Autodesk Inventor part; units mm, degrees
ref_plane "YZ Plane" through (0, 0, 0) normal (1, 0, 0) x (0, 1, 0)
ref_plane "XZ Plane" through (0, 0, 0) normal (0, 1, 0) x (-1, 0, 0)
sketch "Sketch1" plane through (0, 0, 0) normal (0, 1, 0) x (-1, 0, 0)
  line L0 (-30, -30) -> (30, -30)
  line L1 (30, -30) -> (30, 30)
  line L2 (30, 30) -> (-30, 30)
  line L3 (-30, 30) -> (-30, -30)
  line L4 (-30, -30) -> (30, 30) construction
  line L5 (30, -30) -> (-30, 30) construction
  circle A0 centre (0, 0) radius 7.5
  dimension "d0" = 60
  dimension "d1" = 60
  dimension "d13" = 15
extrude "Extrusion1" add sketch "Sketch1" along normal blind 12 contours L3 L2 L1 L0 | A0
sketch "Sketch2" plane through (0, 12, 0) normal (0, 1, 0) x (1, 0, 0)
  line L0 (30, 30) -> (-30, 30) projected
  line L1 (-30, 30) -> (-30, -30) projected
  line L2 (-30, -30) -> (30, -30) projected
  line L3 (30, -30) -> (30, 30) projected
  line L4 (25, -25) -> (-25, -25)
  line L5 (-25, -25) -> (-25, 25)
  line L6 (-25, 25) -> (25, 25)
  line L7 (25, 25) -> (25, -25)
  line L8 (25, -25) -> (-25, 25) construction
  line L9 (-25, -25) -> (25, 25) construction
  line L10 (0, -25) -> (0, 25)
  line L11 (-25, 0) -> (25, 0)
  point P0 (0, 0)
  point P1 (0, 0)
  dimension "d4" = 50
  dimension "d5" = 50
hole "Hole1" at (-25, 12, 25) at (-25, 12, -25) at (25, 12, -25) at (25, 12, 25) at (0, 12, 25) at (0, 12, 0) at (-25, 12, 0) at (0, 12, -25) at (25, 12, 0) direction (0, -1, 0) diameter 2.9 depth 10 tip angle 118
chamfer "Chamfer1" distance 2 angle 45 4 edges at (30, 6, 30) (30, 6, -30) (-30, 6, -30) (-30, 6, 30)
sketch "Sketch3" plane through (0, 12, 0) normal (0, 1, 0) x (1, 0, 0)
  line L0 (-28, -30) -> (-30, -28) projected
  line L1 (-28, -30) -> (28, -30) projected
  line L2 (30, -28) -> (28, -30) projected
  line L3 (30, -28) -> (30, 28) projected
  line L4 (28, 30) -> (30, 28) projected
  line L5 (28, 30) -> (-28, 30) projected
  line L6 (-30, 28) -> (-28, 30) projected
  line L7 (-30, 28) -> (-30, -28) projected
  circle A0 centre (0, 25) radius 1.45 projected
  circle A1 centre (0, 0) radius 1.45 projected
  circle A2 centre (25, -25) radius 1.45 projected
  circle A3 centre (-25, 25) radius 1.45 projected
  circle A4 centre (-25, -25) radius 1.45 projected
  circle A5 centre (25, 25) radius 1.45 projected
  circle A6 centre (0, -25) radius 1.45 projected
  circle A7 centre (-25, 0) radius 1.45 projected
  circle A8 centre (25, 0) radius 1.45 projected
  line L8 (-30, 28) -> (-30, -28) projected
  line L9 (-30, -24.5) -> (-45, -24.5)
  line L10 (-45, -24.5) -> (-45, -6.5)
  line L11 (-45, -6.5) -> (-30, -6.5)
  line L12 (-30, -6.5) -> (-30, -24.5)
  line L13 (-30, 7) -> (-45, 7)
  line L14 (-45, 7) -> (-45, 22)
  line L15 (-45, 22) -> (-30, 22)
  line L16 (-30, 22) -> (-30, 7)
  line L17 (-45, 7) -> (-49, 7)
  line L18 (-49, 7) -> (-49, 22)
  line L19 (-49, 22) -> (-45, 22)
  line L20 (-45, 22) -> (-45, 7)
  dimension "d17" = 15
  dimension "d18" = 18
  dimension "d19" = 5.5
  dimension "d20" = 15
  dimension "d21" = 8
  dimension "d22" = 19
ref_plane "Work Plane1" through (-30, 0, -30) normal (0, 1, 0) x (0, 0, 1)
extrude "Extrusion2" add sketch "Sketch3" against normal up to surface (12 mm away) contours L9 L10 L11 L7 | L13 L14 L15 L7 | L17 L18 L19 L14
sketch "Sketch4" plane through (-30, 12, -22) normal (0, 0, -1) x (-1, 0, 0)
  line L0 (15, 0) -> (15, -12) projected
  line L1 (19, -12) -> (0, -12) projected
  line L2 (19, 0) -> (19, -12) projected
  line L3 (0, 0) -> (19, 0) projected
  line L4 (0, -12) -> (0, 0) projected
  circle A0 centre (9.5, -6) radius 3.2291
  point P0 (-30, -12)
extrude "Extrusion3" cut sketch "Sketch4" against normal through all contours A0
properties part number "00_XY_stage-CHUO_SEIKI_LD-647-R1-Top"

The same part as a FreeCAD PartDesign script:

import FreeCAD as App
import Part
import Sketcher

V = App.Vector


def edges_at(feature, points):
    """Names of the edges that pass closest to the given points."""
    edges = feature.Shape.Edges
    near = lambda p: min(range(len(edges)), key=lambda i: edges[i].distToShape(Part.Vertex(*p))[0])
    return sorted({f"Edge{near(p) + 1}" for p in points})

doc = App.newDocument("Part")
body = doc.addObject("PartDesign::Body", "Body")

sketch1 = doc.addObject("Sketcher::SketchObject", "Sketch")
body.addObject(sketch1)
sketch1.AttachmentSupport = (doc.XZ_Plane, [""])
sketch1.MapMode = "FlatFace"
sketch1.addGeometry([
    Part.LineSegment(V(30, 30, 0), V(30, -30, 0)),
    Part.LineSegment(V(30, -30, 0), V(-30, -30, 0)),
    Part.LineSegment(V(-30, -30, 0), V(-30, 30, 0)),
    Part.LineSegment(V(-30, 30, 0), V(30, 30, 0)),
], False)
sketch1.addConstraint([
    Sketcher.Constraint("Coincident", 0, 2, 1, 1),
    Sketcher.Constraint("Coincident", 1, 2, 2, 1),
    Sketcher.Constraint("Coincident", 2, 2, 3, 1),
    Sketcher.Constraint("Coincident", 3, 2, 0, 1),
    Sketcher.Constraint("Vertical", 0),
    Sketcher.Constraint("Horizontal", 1),
    Sketcher.Constraint("Vertical", 2),
    Sketcher.Constraint("Horizontal", 3),
    Sketcher.Constraint("Symmetric", 0, 2, 2, 2, -1, 1),
    Sketcher.Constraint("Equal", 3, 0),
    Sketcher.Constraint("DistanceX", 1, 2, 1, 1, 60.0),
])
pad1 = doc.addObject("PartDesign::Pad", "Pad")
body.addObject(pad1)
pad1.Profile = sketch1
pad1.Length = 12
pad1.Reversed = True

sketch2 = doc.addObject("Sketcher::SketchObject", "Sketch001")
body.addObject(sketch2)
sketch2.AttachmentSupport = (doc.XZ_Plane, [""])
sketch2.MapMode = "FlatFace"
sketch2.AttachmentOffset = App.Placement(V(0, 0, -12), App.Rotation())
sketch2.addGeometry([
    Part.Circle(V(-25, 25, 0), V(0, 0, 1), 1.4),
    Part.Circle(V(-25, -25, 0), V(0, 0, 1), 1.4),
    Part.Circle(V(25, -25, 0), V(0, 0, 1), 1.4),
    Part.Circle(V(25, 25, 0), V(0, 0, 1), 1.4),
    Part.Circle(V(0, 25, 0), V(0, 0, 1), 1.4),
    Part.Circle(V(0, 0, 0), V(0, 0, 1), 1.4),
    Part.Circle(V(-25, 0, 0), V(0, 0, 1), 1.4),
    Part.Circle(V(0, -25, 0), V(0, 0, 1), 1.4),
    Part.Circle(V(25, 0, 0), V(0, 0, 1), 1.4),
], False)
sketch2.addConstraint([
    Sketcher.Constraint("Coincident", 5, 3, -1, 1),
    Sketcher.Constraint("Equal", 0, 1),
    Sketcher.Constraint("Equal", 1, 2),
    Sketcher.Constraint("Equal", 2, 3),
    Sketcher.Constraint("Equal", 3, 4),
    Sketcher.Constraint("Equal", 4, 5),
    Sketcher.Constraint("Equal", 5, 6),
    Sketcher.Constraint("Equal", 6, 7),
    Sketcher.Constraint("Equal", 7, 8),
    Sketcher.Constraint("Symmetric", 0, 3, 2, 3, -1, 1),
    Sketcher.Constraint("Symmetric", 1, 3, 3, 3, -1, 1),
    Sketcher.Constraint("Symmetric", 4, 3, 7, 3, -1, 1),
    Sketcher.Constraint("Symmetric", 6, 3, 8, 3, -1, 1),
    Sketcher.Constraint("Symmetric", 1, 3, 2, 3, -2),
    Sketcher.Constraint("PointOnObject", 4, 3, -2),
    Sketcher.Constraint("PointOnObject", 6, 3, -1),
    Sketcher.Constraint("Horizontal", 3, 3, 4, 3),
    Sketcher.Constraint("Vertical", 1, 3, 6, 3),
    Sketcher.Constraint("Diameter", 0, 2.9),
    Sketcher.Constraint("DistanceX", 0, 3, -1, 1, 25.0),
    Sketcher.Constraint("DistanceY", -1, 1, 0, 3, 25.0),
])
doc.recompute()
hole = doc.addObject("PartDesign::Hole", "Hole")
body.addObject(hole)
hole.Profile = sketch2
hole.ThreadType = "None"
hole.Diameter = 2.9
hole.DepthType = "Dimension"
hole.Depth = 10
hole.DrillPoint = "Angled"
hole.DrillPointAngle = 118
hole.Reversed = True
doc.recompute()

chamfer = doc.addObject("PartDesign::Chamfer", "Chamfer")
body.addObject(chamfer)
chamfer.Base = (hole, edges_at(hole, [
    (30, 6, 30),
    (30, 6, -30),
    (-30, 6, -30),
    (-30, 6, 30),
]))
chamfer.Size = 2

sketch3 = doc.addObject("Sketcher::SketchObject", "Sketch002")
body.addObject(sketch3)
sketch3.AttachmentSupport = (doc.XZ_Plane, [""])
sketch3.MapMode = "FlatFace"
sketch3.AttachmentOffset = App.Placement(V(0, 0, -12), App.Rotation())
sketch3.addGeometry([
    Part.LineSegment(V(-45, 24, 0), V(-30, 24, 0)),
    Part.LineSegment(V(-30, 24, 0), V(-30, 6, 0)),
    Part.LineSegment(V(-30, 6, 0), V(-45, 6, 0)),
    Part.LineSegment(V(-45, 6, 0), V(-45, 24, 0)),
    Part.LineSegment(V(-30, -7, 0), V(-30, -22, 0)),
    Part.LineSegment(V(-30, -22, 0), V(-49, -22, 0)),
    Part.LineSegment(V(-49, -22, 0), V(-49, -7, 0)),
    Part.LineSegment(V(-49, -7, 0), V(-30, -7, 0)),
], False)
sketch3.addConstraint([
    Sketcher.Constraint("Coincident", 0, 2, 1, 1),
    Sketcher.Constraint("Coincident", 1, 2, 2, 1),
    Sketcher.Constraint("Coincident", 2, 2, 3, 1),
    Sketcher.Constraint("Coincident", 3, 2, 0, 1),
    Sketcher.Constraint("Coincident", 4, 2, 5, 1),
    Sketcher.Constraint("Coincident", 5, 2, 6, 1),
    Sketcher.Constraint("Coincident", 6, 2, 7, 1),
    Sketcher.Constraint("Coincident", 7, 2, 4, 1),
    Sketcher.Constraint("Horizontal", 0),
    Sketcher.Constraint("Vertical", 1),
    Sketcher.Constraint("Horizontal", 2),
    Sketcher.Constraint("Vertical", 3),
    Sketcher.Constraint("Vertical", 4),
    Sketcher.Constraint("Horizontal", 5),
    Sketcher.Constraint("Vertical", 6),
    Sketcher.Constraint("Horizontal", 7),
    Sketcher.Constraint("Vertical", 1, 2, 4, 2),
    Sketcher.Constraint("Equal", 2, 4),
    Sketcher.Constraint("DistanceX", 0, 1, 0, 2, 15.0),
    Sketcher.Constraint("DistanceX", 5, 2, 5, 1, 19.0),
    Sketcher.Constraint("DistanceY", 1, 2, 1, 1, 18.0),
    Sketcher.Constraint("DistanceX", 0, 2, -1, 1, 30.0),
    Sketcher.Constraint("DistanceY", 4, 2, -1, 1, 22.0),
    Sketcher.Constraint("DistanceY", -1, 1, 0, 2, 24.5),
])
pad2 = doc.addObject("PartDesign::Pad", "Pad001")
body.addObject(pad2)
pad2.Profile = sketch3
pad2.Length = 12

sketch4 = doc.addObject("Sketcher::SketchObject", "Sketch003")
body.addObject(sketch4)
sketch4.AttachmentSupport = (doc.XY_Plane, [""])
sketch4.MapMode = "FlatFace"
sketch4.AttachmentOffset = App.Placement(V(0, 0, -22), App.Rotation())
sketch4.addGeometry(Part.Circle(V(-39.5, 6, 0), V(0, 0, 1), 3.2), False)
sketch4.addConstraint([
    Sketcher.Constraint("DistanceY", -1, 1, 0, 3, 6.0),
    Sketcher.Constraint("Diameter", 0, 6.4582),
    Sketcher.Constraint("DistanceX", 0, 3, -1, 1, 39.5),
])
pocket1 = doc.addObject("PartDesign::Pocket", "Pocket")
body.addObject(pocket1)
pocket1.Profile = sketch4
pocket1.Type = "ThroughAll"
pocket1.Reversed = True

doc.recompute()
